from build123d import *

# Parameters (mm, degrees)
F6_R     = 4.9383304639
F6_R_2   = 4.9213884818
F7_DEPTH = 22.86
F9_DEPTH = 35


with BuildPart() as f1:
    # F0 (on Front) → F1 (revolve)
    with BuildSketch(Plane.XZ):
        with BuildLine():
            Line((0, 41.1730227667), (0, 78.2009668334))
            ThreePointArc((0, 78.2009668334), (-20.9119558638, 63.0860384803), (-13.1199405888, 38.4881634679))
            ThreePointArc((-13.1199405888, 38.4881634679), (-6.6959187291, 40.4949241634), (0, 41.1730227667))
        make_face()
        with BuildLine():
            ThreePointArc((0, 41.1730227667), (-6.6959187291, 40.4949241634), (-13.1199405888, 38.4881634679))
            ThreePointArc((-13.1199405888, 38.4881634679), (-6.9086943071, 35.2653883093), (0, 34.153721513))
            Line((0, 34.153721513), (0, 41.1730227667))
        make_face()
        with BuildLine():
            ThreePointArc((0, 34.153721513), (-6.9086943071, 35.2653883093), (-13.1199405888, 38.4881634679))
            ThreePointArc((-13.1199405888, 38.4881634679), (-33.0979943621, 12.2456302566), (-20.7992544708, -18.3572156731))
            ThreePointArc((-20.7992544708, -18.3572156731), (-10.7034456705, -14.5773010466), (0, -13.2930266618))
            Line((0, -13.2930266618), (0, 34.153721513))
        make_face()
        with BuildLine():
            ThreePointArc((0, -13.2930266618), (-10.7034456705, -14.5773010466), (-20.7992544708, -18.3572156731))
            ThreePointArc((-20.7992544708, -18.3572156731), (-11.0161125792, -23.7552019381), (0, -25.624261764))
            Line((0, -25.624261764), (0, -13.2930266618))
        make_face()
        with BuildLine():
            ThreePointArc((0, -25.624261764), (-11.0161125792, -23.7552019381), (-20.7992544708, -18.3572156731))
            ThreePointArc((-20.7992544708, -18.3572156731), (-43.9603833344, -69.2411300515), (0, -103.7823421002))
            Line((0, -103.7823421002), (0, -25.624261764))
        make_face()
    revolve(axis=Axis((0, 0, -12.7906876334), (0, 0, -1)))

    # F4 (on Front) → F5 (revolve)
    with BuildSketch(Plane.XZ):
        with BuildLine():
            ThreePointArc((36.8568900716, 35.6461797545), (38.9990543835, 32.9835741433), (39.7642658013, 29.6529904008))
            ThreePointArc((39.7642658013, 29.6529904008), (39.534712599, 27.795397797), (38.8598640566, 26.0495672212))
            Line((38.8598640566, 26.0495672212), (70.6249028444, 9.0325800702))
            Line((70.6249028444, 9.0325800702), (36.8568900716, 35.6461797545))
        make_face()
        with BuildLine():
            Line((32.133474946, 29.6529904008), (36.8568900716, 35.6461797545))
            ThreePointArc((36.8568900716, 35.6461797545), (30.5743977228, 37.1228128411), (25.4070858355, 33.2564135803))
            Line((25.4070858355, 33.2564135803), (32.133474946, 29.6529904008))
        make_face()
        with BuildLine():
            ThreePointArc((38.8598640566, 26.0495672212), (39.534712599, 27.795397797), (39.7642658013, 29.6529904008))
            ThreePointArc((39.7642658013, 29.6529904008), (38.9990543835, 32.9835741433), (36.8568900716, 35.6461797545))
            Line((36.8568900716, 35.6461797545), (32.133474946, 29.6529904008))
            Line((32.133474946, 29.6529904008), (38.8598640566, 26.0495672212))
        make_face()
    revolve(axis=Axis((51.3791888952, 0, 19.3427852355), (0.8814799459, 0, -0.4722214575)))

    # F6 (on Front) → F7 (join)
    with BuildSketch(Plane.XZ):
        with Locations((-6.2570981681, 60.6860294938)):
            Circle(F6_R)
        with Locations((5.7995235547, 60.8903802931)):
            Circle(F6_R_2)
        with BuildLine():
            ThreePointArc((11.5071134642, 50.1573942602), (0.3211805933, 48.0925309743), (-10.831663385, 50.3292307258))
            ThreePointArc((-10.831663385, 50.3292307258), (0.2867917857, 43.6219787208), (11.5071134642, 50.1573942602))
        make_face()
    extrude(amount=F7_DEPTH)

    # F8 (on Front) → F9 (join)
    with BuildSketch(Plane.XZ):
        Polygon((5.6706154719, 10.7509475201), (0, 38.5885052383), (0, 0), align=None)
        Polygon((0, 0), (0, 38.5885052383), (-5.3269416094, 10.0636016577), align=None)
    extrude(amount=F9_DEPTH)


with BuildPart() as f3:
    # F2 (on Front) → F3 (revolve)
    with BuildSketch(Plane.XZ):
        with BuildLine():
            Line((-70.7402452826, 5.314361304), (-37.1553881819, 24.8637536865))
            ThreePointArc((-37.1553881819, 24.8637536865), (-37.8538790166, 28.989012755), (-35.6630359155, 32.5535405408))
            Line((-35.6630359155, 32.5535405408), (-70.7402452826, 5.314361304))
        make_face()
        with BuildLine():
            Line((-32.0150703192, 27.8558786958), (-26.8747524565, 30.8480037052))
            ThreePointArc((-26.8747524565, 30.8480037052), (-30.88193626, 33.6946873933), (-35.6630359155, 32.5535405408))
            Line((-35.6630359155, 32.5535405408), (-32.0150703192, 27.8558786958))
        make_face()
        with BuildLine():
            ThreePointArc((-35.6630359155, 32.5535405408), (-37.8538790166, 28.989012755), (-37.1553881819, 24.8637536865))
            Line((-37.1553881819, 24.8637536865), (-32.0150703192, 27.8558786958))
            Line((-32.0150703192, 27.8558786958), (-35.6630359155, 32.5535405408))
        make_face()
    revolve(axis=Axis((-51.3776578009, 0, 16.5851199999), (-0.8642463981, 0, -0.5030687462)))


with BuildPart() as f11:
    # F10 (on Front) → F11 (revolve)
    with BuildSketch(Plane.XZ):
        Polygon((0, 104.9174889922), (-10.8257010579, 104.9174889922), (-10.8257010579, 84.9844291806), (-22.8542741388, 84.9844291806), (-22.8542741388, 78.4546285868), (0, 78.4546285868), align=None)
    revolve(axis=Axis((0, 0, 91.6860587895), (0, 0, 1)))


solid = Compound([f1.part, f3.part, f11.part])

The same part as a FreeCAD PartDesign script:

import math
import FreeCAD as App
import Part
import Sketcher
from FreeCAD import Vector
Q = App.Units.Quantity


def add_polygon(sketch, points):
    """Adds a closed chain of lines whose ends are joined by coincident constraints."""
    first, n = sketch.GeometryCount, len(points)
    for a, b in zip(points, points[1:] + points[:1]):
        sketch.addGeometry(Part.LineSegment(App.Vector(*a, 0), App.Vector(*b, 0)), False)
    for i in range(n):
        sketch.addConstraint(Sketcher.Constraint("Coincident", first + i, 2, first + (i + 1) % n, 1))

doc = App.newDocument("Part")
body = doc.addObject("PartDesign::Body", "Body")

sketch1 = doc.addObject("Sketcher::SketchObject", "Sketch")
body.addObject(sketch1)
sketch1.AttachmentSupport = (doc.XZ_Plane, [""])
sketch1.MapMode = "FlatFace"
sketch1.addGeometry(Part.ArcOfCircle(Part.Circle(Vector(0, 56, 0), Vector(0, 0, 1), 22), math.radians(90), math.radians(233)), False)
sketch1.addGeometry(Part.ArcOfCircle(Part.Circle(Vector(0, 8, 0), Vector(0, 0, 1), 33), math.radians(113), math.radians(231)), False)
sketch1.addGeometry(Part.ArcOfCircle(Part.Circle(Vector(0, -59, 0), Vector(0, 0, 1), 45), math.radians(117), math.radians(270)), False)
sketch1.addGeometry(Part.LineSegment(Vector(0, -104, 0), Vector(0, 78, 0)), False)
sketch1.addConstraint(Sketcher.Constraint("Coincident", 0, 2, 1, 1))
sketch1.addConstraint(Sketcher.Constraint("Coincident", 1, 2, 2, 1))
sketch1.addConstraint(Sketcher.Constraint("Coincident", 2, 2, 3, 1))
sketch1.addConstraint(Sketcher.Constraint("Coincident", 3, 2, 0, 1))
sketch1.addConstraint(Sketcher.Constraint("Vertical", 3))
sketch1.addConstraint(Sketcher.Constraint("PointOnObject", 0, 3, -2))
sketch1.addConstraint(Sketcher.Constraint("PointOnObject", 1, 3, -2))
sketch1.addConstraint(Sketcher.Constraint("PointOnObject", 2, 3, -2))
sketch1.addConstraint(Sketcher.Constraint("PointOnObject", 2, 2, -2))
sketch1.addConstraint(Sketcher.Constraint("Radius", 0, Q("22.023623 mm")))
sketch1.addConstraint(Sketcher.Constraint("Radius", 1, Q("33.398642 mm")))
sketch1.addConstraint(Sketcher.Constraint("Radius", 2, Q("45.244658 mm")))
sketch1.addConstraint(Sketcher.Constraint("DistanceY", 3, 1, 3, 2, Q("181.983309 mm")))
sketch1.addConstraint(Sketcher.Constraint("DistanceY", -1, 1, 1, 3, Q("7.774381 mm")))
sketch1.addConstraint(Sketcher.Constraint("DistanceX", 0, 2, -1, 1, Q("13.119941 mm")))
revolution = doc.addObject("PartDesign::Revolution", "Revolution")
body.addObject(revolution)
revolution.Profile = sketch1
revolution.ReferenceAxis = (sketch1, ["V_Axis"])
revolution.Angle = 360

sketch2 = doc.addObject("Sketcher::SketchObject", "Sketch001")
body.addObject(sketch2)
sketch2.AttachmentSupport = (doc.XZ_Plane, [""])
sketch2.MapMode = "FlatFace"
sketch2.addGeometry(Part.LineSegment(Vector(39, 26, 0), Vector(71, 9, 0)), False)
sketch2.addGeometry(Part.LineSegment(Vector(71, 9, 0), Vector(37, 36, 0)), False)
sketch2.addGeometry(Part.ArcOfCircle(Part.Circle(Vector(32, 30, 0), Vector(0, 0, 1), 8), math.radians(52), math.radians(152)), False)
sketch2.addGeometry(Part.LineSegment(Vector(25, 33, 0), Vector(32, 30, 0)), False)
sketch2.addGeometry(Part.LineSegment(Vector(32, 30, 0), Vector(39, 26, 0)), False)
sketch2.addGeometry(Part.LineSegment(Vector(25, 33, 0), Vector(71, 9, 0)), True)
sketch2.addConstraint(Sketcher.Constraint("Coincident", 0, 2, 1, 1))
sketch2.addConstraint(Sketcher.Constraint("Tangent", 1, 2, 2, 1))
sketch2.addConstraint(Sketcher.Constraint("Coincident", 2, 2, 3, 1))
sketch2.addConstraint(Sketcher.Constraint("Coincident", 3, 2, 4, 1))
sketch2.addConstraint(Sketcher.Constraint("Coincident", 4, 2, 0, 1))
sketch2.addConstraint(Sketcher.Constraint("Coincident", 3, 2, 2, 3))
sketch2.addConstraint(Sketcher.Constraint("Coincident", 5, 1, 2, 2))
sketch2.addConstraint(Sketcher.Constraint("Coincident", 5, 2, 0, 2))
sketch2.addConstraint(Sketcher.Constraint("Parallel", 0, 3))
sketch2.addConstraint(Sketcher.Constraint("Parallel", 3, 4))
sketch2.addConstraint(Sketcher.Constraint("Equal", 3, 4))
sketch2.addConstraint(Sketcher.Constraint("Radius", 2, Q("7.630791 mm")))
sketch2.addConstraint(Sketcher.Constraint("DistanceY", 0, 2, 1, 2, Q("26.6136 mm")))
sketch2.addConstraint(Sketcher.Constraint("Distance", 0, Q("36.036031 mm")))
sketch2.addConstraint(Sketcher.Constraint("DistanceY", -1, 1, 2, 3, Q("29.65299 mm")))
sketch2.addConstraint(Sketcher.Constraint("DistanceX", -1, 1, 1, 2, Q("36.85689 mm")))
revolution2 = doc.addObject("PartDesign::Revolution", "Revolution001")
body.addObject(revolution2)
revolution2.Profile = sketch2
revolution2.ReferenceAxis = (sketch2, ["Axis0"])
revolution2.Angle = 360

sketch3 = doc.addObject("Sketcher::SketchObject", "Sketch002")
body.addObject(sketch3)
sketch3.AttachmentSupport = (doc.XZ_Plane, [""])
sketch3.MapMode = "FlatFace"
sketch3.addGeometry(Part.Circle(Vector(-6.3, 60.7, 0), Vector(0, 0, 1), 4.9), False)
sketch3.addGeometry(Part.Circle(Vector(5.8, 60.9, 0), Vector(0, 0, 1), 4.9), False)
sketch3.addGeometry(Part.ArcOfCircle(Part.Circle(Vector(0.6, 78.2, 0), Vector(0, 0, 1), 30.1), math.radians(-112), math.radians(-69)), False)
sketch3.addGeometry(Part.ArcOfCircle(Part.Circle(Vector(0.4, 56.4, 0), Vector(0, 0, 1), 12.7), math.radians(-152), math.radians(-29)), False)
sketch3.addConstraint(Sketcher.Constraint("Coincident", 2, 1, 3, 1))
sketch3.addConstraint(Sketcher.Constraint("Coincident", 3, 2, 2, 2))
sketch3.addConstraint(Sketcher.Constraint("Diameter", 0, Q("9.876661 mm")))
sketch3.addConstraint(Sketcher.Constraint("Diameter", 1, Q("9.842777 mm")))
sketch3.addConstraint(Sketcher.Constraint("Radius", 2, Q("30.078584 mm")))
sketch3.addConstraint(Sketcher.Constraint("Radius", 3, Q("12.731747 mm")))
sketch3.addConstraint(Sketcher.Constraint("DistanceX", 0, 3, -1, 1, Q("6.257098 mm")))
sketch3.addConstraint(Sketcher.Constraint("DistanceX", 3, 3, 1, 3, Q("5.414798 mm")))
sketch3.addConstraint(Sketcher.Constraint("DistanceY", 2, 1, 0, 3, Q("10.356799 mm")))
sketch3.addConstraint(Sketcher.Constraint("DistanceY", -1, 1, 0, 3, Q("60.686029 mm")))
sketch3.addConstraint(Sketcher.Constraint("DistanceY", -1, 1, 1, 3, Q("60.89038 mm")))
sketch3.addConstraint(Sketcher.Constraint("DistanceY", -1, 1, 3, 3, Q("56.353349 mm")))
sketch3.addConstraint(Sketcher.Constraint("DistanceX", 0, 3, 1, 3, Q("12.056622 mm")))
sketch3.addConstraint(Sketcher.Constraint("DistanceX", 3, 3, 2, 3, Q("0.167822 mm")))
pad1 = doc.addObject("PartDesign::Pad", "Pad")
body.addObject(pad1)
pad1.Profile = sketch3
pad1.Length = 22.86

sketch4 = doc.addObject("Sketcher::SketchObject", "Sketch003")
body.addObject(sketch4)
sketch4.AttachmentSupport = (doc.XZ_Plane, [""])
sketch4.MapMode = "FlatFace"
add_polygon(sketch4, [(6, 11), (0, 39), (-5, 10), (0, 0)])
sketch4.addConstraint(Sketcher.Constraint("Coincident", 2, 2, -1, 1))
sketch4.addConstraint(Sketcher.Constraint("PointOnObject", 0, 2, -2))
sketch4.addConstraint(Sketcher.Constraint("Distance", 2, Q("11.3865 mm")))
sketch4.addConstraint(Sketcher.Constraint("DistanceY", -1, 1, 1, 2, Q("10.063602 mm")))
sketch4.addConstraint(Sketcher.Constraint("Distance", 0, Q("28.40925 mm")))
sketch4.addConstraint(Sketcher.Constraint("Distance", 1, Q("29.018036 mm")))
sketch4.addConstraint(Sketcher.Constraint("Distance", 3, Q("12.154783 mm")))
pad2 = doc.addObject("PartDesign::Pad", "Pad001")
body.addObject(pad2)
pad2.Profile = sketch4
pad2.Length = 35
body2 = doc.addObject("PartDesign::Body", "Body001")

sketch5 = doc.addObject("Sketcher::SketchObject", "Sketch004")
body2.addObject(sketch5)
sketch5.AttachmentSupport = (doc.getObject("XZ_Plane001"), [""])
sketch5.MapMode = "FlatFace"
sketch5.addGeometry(Part.LineSegment(Vector(-71, 5, 0), Vector(-37, 25, 0)), False)
sketch5.addGeometry(Part.LineSegment(Vector(-37, 25, 0), Vector(-32, 28, 0)), False)
sketch5.addGeometry(Part.LineSegment(Vector(-32, 28, 0), Vector(-27, 31, 0)), False)
sketch5.addGeometry(Part.ArcOfCircle(Part.Circle(Vector(-32, 28, 0), Vector(0, 0, 1), 6), math.radians(30), math.radians(128)), False)
sketch5.addGeometry(Part.LineSegment(Vector(-36, 33, 0), Vector(-71, 5, 0)), False)
sketch5.addGeometry(Part.LineSegment(Vector(-27, 31, 0), Vector(-71, 5, 0)), True)
sketch5.addConstraint(Sketcher.Constraint("Coincident", 0, 2, 1, 1))
sketch5.addConstraint(Sketcher.Constraint("Coincident", 1, 2, 2, 1))
sketch5.addConstraint(Sketcher.Constraint("Coincident", 2, 2, 3, 1))
sketch5.addConstraint(Sketcher.Constraint("Tangent", 3, 2, 4, 1))
sketch5.addConstraint(Sketcher.Constraint("Coincident", 4, 2, 0, 1))
sketch5.addConstraint(Sketcher.Constraint("Coincident", 1, 2, 3, 3))
sketch5.addConstraint(Sketcher.Constraint("Coincident", 5, 1, 2, 2))
sketch5.addConstraint(Sketcher.Constraint("Coincident", 5, 2, 4, 2))
sketch5.addConstraint(Sketcher.Constraint("Parallel", 0, 1))
sketch5.addConstraint(Sketcher.Constraint("Parallel", 1, 2))
sketch5.addConstraint(Sketcher.Constraint("Equal", 1, 2))
sketch5.addConstraint(Sketcher.Constraint("Radius", 3, Q("5.947746 mm")))
sketch5.addConstraint(Sketcher.Constraint("Distance", 0, Q("38.86028 mm")))
sketch5.addConstraint(Sketcher.Constraint("DistanceX", 3, 3, -1, 1, Q("32.01507 mm")))
sketch5.addConstraint(Sketcher.Constraint("DistanceY", -1, 1, 3, 3, Q("27.855879 mm")))
sketch5.addConstraint(Sketcher.Constraint("DistanceX", 0, 2, -1, 1, Q("37.155388 mm")))
revolution3 = doc.addObject("PartDesign::Revolution", "Revolution002")
body2.addObject(revolution3)
revolution3.Profile = sketch5
revolution3.ReferenceAxis = (sketch5, ["Axis0"])
revolution3.Angle = 360
body3 = doc.addObject("PartDesign::Body", "Body002")

sketch6 = doc.addObject("Sketcher::SketchObject", "Sketch005")
body3.addObject(sketch6)
sketch6.AttachmentSupport = (doc.getObject("XZ_Plane002"), [""])
sketch6.MapMode = "FlatFace"
add_polygon(sketch6, [(0, 105), (-11, 105), (-11, 85), (-23, 85), (-23, 78), (0, 78)])
sketch6.addConstraint(Sketcher.Constraint("Horizontal", 0))
sketch6.addConstraint(Sketcher.Constraint("Vertical", 1))
sketch6.addConstraint(Sketcher.Constraint("Horizontal", 2))
sketch6.addConstraint(Sketcher.Constraint("Vertical", 3))
sketch6.addConstraint(Sketcher.Constraint("Horizontal", 4))
sketch6.addConstraint(Sketcher.Constraint("Vertical", 5))
sketch6.addConstraint(Sketcher.Constraint("PointOnObject", 4, 2, -2))
sketch6.addConstraint(Sketcher.Constraint("DistanceX", 0, 2, 0, 1, Q("10.825701 mm")))
sketch6.addConstraint(Sketcher.Constraint("DistanceY", 3, 2, 3, 1, Q("6.529801 mm")))
sketch6.addConstraint(Sketcher.Constraint("DistanceY", 1, 2, 1, 1, Q("19.93306 mm")))
sketch6.addConstraint(Sketcher.Constraint("DistanceX", 2, 2, 2, 1, Q("12.028573 mm")))
sketch6.addConstraint(Sketcher.Constraint("DistanceY", -1, 1, 0, 2, Q("104.917489 mm")))
revolution4 = doc.addObject("PartDesign::Revolution", "Revolution003")
body3.addObject(revolution4)
revolution4.Profile = sketch6
revolution4.ReferenceAxis = (sketch6, ["V_Axis"])
revolution4.Angle = 360

doc.recompute()
